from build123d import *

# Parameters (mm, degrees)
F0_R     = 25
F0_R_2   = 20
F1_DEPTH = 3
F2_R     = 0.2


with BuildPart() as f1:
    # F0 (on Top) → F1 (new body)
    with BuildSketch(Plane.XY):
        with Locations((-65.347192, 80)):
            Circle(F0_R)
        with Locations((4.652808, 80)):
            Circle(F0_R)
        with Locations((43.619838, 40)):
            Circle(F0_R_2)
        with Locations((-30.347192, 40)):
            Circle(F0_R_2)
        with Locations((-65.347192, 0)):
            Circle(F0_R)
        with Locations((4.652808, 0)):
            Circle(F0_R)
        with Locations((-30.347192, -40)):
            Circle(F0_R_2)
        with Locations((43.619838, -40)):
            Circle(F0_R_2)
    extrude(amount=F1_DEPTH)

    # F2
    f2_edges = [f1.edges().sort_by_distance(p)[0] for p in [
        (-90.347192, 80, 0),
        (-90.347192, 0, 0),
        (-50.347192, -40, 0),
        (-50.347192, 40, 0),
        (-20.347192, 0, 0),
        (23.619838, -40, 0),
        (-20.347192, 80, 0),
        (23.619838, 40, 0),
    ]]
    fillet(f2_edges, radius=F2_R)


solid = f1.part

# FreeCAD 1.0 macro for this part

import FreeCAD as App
import Part
import Sketcher
from FreeCAD import Vector
Q = App.Units.Quantity


def edges_at(feature, points):
    """Names of the edges that pass closest to the given points."""
    edges = feature.Shape.Edges
    near = lambda p: min(range(len(edges)), key=lambda i: edges[i].distToShape(Part.Vertex(*p))[0])
    return sorted({f"Edge{near(p) + 1}" for p in points})

doc = App.newDocument("Part")
body = doc.addObject("PartDesign::Body", "Body")
body.AllowCompound = True

# Sketch on XY plane
sketch1 = body.newObject("Sketcher::SketchObject", "Sketch")
sketch1.AttachmentSupport = (doc.getObject("XY_Plane"), [""])
sketch1.MapMode = "FlatFace"
sketch1.addGeometry([
    Part.Circle(Vector(-65, 80, 0), Vector(0, 0, 1), 25),  # 0
    Part.Circle(Vector(5, 80, 0), Vector(0, 0, 1), 25),  # 1
    Part.Circle(Vector(44, 40, 0), Vector(0, 0, 1), 20),  # 2
    Part.Circle(Vector(-30, 40, 0), Vector(0, 0, 1), 20),  # 3
    Part.Circle(Vector(-65, 0, 0), Vector(0, 0, 1), 25),  # 4
    Part.Circle(Vector(5, 0, 0), Vector(0, 0, 1), 25),  # 5
    Part.Circle(Vector(-30, -40, 0), Vector(0, 0, 1), 20),  # 6
    Part.Circle(Vector(44, -40, 0), Vector(0, 0, 1), 20),  # 7
], False)
sketch1.addConstraint([
    Sketcher.Constraint("Equal", 0, 1),
    Sketcher.Constraint("Equal", 2, 3),
    Sketcher.Constraint("Equal", 1, 4),
    Sketcher.Constraint("Equal", 4, 5),
    Sketcher.Constraint("Equal", 3, 6),
    Sketcher.Constraint("Equal", 6, 7),
    Sketcher.Constraint("Symmetric", 3, 3, 6, 3, -1),
    Sketcher.Constraint("Symmetric", 2, 3, 7, 3, -1),
    Sketcher.Constraint("PointOnObject", 4, 3, -1),
    Sketcher.Constraint("PointOnObject", 5, 3, -1),
    Sketcher.Constraint("Horizontal", 0, 3, 1, 3),
    Sketcher.Constraint("Horizontal", 2, 3, 3, 3),
    Sketcher.Constraint("Vertical", 0, 3, 4, 3),
    Sketcher.Constraint("Vertical", 1, 3, 5, 3),
    Sketcher.Constraint("Diameter", 0, Q("50 mm")),
    Sketcher.Constraint("Diameter", 2, Q("40 mm")),
    Sketcher.Constraint("DistanceY", -1, 1, 0, 3, Q("80 mm")),
    Sketcher.Constraint("DistanceY", -1, 1, 2, 3, Q("40 mm")),
    Sketcher.Constraint("DistanceX", 0, 3, 1, 3, Q("70 mm")),
    Sketcher.Constraint("DistanceX", 3, 3, 1, 3, Q("35 mm")),
    Sketcher.Constraint("DistanceX", -1, 1, 1, 3, Q("4.652808 mm")),
    Sketcher.Constraint("DistanceX", 1, 3, 2, 3, Q("38.96703 mm")),
])
pad1 = body.newObject("PartDesign::Pad", "Pad")
pad1.Profile = sketch1
pad1.Length = 3
doc.recompute()

fillet = body.newObject("PartDesign::Fillet", "Fillet")
fillet.Base = (pad1, edges_at(pad1, [
    (-90.347, 80, 0),
    (-90.347, 0, 0),
    (-50.347, -40, 0),
    (-50.347, 40, 0),
    (-20.347, 0, 0),
    (23.62, -40, 0),
    (-20.347, 80, 0),
    (23.62, 40, 0),
]))
fillet.Radius = 0.2

doc.recompute()
